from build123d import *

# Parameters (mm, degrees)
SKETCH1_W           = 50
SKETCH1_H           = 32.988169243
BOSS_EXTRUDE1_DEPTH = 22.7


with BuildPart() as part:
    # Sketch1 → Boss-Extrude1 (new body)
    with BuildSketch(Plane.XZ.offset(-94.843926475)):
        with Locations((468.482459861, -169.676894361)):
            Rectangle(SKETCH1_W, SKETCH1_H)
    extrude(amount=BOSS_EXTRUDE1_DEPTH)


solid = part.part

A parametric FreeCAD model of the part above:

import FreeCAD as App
import Part
import Sketcher

doc = App.newDocument("Part")
body = doc.addObject("PartDesign::Body", "Body")

# Sketch on XZ plane
sketch1 = body.newObject("Sketcher::SketchObject", "Sketch")
sketch1.AttachmentSupport = (doc.getObject("XZ_Plane"), [""])
sketch1.MapMode = "FlatFace"
sketch1.AttachmentOffset = App.Placement(App.Vector(0, 0, -94.843926), App.Rotation())
sketch1.addGeometry(Part.LineSegment(App.Vector(443, -153, 0), App.Vector(443, -186, 0)), False)
sketch1.addGeometry(Part.LineSegment(App.Vector(443, -186, 0), App.Vector(493, -186, 0)), False)
sketch1.addGeometry(Part.LineSegment(App.Vector(493, -186, 0), App.Vector(493, -153, 0)), False)
sketch1.addGeometry(Part.LineSegment(App.Vector(493, -153, 0), App.Vector(443, -153, 0)), False)
sketch1.addConstraint(Sketcher.Constraint("Coincident", 0, 2, 1, 1))
sketch1.addConstraint(Sketcher.Constraint("Coincident", 1, 2, 2, 1))
sketch1.addConstraint(Sketcher.Constraint("Coincident", 2, 2, 3, 1))
sketch1.addConstraint(Sketcher.Constraint("Coincident", 3, 2, 0, 1))
sketch1.addConstraint(Sketcher.Constraint("Vertical", 0))
sketch1.addConstraint(Sketcher.Constraint("Horizontal", 1))
sketch1.addConstraint(Sketcher.Constraint("Vertical", 2))
sketch1.addConstraint(Sketcher.Constraint("Horizontal", 3))
sketch1.addConstraint(Sketcher.Constraint("DistanceX", 1, 1, 1, 2, 50.0))
sketch1.addConstraint(Sketcher.Constraint("DistanceY", 0, 2, 0, 1, 32.988169))
sketch1.addConstraint(Sketcher.Constraint("DistanceX", -1, 1, 0, 2, 443.48246))
sketch1.addConstraint(Sketcher.Constraint("DistanceY", 0, 2, -1, 1, 186.170979))
pad1 = body.newObject("PartDesign::Pad", "Pad")
pad1.Profile = sketch1
pad1.Length = 22.7

doc.recompute()
